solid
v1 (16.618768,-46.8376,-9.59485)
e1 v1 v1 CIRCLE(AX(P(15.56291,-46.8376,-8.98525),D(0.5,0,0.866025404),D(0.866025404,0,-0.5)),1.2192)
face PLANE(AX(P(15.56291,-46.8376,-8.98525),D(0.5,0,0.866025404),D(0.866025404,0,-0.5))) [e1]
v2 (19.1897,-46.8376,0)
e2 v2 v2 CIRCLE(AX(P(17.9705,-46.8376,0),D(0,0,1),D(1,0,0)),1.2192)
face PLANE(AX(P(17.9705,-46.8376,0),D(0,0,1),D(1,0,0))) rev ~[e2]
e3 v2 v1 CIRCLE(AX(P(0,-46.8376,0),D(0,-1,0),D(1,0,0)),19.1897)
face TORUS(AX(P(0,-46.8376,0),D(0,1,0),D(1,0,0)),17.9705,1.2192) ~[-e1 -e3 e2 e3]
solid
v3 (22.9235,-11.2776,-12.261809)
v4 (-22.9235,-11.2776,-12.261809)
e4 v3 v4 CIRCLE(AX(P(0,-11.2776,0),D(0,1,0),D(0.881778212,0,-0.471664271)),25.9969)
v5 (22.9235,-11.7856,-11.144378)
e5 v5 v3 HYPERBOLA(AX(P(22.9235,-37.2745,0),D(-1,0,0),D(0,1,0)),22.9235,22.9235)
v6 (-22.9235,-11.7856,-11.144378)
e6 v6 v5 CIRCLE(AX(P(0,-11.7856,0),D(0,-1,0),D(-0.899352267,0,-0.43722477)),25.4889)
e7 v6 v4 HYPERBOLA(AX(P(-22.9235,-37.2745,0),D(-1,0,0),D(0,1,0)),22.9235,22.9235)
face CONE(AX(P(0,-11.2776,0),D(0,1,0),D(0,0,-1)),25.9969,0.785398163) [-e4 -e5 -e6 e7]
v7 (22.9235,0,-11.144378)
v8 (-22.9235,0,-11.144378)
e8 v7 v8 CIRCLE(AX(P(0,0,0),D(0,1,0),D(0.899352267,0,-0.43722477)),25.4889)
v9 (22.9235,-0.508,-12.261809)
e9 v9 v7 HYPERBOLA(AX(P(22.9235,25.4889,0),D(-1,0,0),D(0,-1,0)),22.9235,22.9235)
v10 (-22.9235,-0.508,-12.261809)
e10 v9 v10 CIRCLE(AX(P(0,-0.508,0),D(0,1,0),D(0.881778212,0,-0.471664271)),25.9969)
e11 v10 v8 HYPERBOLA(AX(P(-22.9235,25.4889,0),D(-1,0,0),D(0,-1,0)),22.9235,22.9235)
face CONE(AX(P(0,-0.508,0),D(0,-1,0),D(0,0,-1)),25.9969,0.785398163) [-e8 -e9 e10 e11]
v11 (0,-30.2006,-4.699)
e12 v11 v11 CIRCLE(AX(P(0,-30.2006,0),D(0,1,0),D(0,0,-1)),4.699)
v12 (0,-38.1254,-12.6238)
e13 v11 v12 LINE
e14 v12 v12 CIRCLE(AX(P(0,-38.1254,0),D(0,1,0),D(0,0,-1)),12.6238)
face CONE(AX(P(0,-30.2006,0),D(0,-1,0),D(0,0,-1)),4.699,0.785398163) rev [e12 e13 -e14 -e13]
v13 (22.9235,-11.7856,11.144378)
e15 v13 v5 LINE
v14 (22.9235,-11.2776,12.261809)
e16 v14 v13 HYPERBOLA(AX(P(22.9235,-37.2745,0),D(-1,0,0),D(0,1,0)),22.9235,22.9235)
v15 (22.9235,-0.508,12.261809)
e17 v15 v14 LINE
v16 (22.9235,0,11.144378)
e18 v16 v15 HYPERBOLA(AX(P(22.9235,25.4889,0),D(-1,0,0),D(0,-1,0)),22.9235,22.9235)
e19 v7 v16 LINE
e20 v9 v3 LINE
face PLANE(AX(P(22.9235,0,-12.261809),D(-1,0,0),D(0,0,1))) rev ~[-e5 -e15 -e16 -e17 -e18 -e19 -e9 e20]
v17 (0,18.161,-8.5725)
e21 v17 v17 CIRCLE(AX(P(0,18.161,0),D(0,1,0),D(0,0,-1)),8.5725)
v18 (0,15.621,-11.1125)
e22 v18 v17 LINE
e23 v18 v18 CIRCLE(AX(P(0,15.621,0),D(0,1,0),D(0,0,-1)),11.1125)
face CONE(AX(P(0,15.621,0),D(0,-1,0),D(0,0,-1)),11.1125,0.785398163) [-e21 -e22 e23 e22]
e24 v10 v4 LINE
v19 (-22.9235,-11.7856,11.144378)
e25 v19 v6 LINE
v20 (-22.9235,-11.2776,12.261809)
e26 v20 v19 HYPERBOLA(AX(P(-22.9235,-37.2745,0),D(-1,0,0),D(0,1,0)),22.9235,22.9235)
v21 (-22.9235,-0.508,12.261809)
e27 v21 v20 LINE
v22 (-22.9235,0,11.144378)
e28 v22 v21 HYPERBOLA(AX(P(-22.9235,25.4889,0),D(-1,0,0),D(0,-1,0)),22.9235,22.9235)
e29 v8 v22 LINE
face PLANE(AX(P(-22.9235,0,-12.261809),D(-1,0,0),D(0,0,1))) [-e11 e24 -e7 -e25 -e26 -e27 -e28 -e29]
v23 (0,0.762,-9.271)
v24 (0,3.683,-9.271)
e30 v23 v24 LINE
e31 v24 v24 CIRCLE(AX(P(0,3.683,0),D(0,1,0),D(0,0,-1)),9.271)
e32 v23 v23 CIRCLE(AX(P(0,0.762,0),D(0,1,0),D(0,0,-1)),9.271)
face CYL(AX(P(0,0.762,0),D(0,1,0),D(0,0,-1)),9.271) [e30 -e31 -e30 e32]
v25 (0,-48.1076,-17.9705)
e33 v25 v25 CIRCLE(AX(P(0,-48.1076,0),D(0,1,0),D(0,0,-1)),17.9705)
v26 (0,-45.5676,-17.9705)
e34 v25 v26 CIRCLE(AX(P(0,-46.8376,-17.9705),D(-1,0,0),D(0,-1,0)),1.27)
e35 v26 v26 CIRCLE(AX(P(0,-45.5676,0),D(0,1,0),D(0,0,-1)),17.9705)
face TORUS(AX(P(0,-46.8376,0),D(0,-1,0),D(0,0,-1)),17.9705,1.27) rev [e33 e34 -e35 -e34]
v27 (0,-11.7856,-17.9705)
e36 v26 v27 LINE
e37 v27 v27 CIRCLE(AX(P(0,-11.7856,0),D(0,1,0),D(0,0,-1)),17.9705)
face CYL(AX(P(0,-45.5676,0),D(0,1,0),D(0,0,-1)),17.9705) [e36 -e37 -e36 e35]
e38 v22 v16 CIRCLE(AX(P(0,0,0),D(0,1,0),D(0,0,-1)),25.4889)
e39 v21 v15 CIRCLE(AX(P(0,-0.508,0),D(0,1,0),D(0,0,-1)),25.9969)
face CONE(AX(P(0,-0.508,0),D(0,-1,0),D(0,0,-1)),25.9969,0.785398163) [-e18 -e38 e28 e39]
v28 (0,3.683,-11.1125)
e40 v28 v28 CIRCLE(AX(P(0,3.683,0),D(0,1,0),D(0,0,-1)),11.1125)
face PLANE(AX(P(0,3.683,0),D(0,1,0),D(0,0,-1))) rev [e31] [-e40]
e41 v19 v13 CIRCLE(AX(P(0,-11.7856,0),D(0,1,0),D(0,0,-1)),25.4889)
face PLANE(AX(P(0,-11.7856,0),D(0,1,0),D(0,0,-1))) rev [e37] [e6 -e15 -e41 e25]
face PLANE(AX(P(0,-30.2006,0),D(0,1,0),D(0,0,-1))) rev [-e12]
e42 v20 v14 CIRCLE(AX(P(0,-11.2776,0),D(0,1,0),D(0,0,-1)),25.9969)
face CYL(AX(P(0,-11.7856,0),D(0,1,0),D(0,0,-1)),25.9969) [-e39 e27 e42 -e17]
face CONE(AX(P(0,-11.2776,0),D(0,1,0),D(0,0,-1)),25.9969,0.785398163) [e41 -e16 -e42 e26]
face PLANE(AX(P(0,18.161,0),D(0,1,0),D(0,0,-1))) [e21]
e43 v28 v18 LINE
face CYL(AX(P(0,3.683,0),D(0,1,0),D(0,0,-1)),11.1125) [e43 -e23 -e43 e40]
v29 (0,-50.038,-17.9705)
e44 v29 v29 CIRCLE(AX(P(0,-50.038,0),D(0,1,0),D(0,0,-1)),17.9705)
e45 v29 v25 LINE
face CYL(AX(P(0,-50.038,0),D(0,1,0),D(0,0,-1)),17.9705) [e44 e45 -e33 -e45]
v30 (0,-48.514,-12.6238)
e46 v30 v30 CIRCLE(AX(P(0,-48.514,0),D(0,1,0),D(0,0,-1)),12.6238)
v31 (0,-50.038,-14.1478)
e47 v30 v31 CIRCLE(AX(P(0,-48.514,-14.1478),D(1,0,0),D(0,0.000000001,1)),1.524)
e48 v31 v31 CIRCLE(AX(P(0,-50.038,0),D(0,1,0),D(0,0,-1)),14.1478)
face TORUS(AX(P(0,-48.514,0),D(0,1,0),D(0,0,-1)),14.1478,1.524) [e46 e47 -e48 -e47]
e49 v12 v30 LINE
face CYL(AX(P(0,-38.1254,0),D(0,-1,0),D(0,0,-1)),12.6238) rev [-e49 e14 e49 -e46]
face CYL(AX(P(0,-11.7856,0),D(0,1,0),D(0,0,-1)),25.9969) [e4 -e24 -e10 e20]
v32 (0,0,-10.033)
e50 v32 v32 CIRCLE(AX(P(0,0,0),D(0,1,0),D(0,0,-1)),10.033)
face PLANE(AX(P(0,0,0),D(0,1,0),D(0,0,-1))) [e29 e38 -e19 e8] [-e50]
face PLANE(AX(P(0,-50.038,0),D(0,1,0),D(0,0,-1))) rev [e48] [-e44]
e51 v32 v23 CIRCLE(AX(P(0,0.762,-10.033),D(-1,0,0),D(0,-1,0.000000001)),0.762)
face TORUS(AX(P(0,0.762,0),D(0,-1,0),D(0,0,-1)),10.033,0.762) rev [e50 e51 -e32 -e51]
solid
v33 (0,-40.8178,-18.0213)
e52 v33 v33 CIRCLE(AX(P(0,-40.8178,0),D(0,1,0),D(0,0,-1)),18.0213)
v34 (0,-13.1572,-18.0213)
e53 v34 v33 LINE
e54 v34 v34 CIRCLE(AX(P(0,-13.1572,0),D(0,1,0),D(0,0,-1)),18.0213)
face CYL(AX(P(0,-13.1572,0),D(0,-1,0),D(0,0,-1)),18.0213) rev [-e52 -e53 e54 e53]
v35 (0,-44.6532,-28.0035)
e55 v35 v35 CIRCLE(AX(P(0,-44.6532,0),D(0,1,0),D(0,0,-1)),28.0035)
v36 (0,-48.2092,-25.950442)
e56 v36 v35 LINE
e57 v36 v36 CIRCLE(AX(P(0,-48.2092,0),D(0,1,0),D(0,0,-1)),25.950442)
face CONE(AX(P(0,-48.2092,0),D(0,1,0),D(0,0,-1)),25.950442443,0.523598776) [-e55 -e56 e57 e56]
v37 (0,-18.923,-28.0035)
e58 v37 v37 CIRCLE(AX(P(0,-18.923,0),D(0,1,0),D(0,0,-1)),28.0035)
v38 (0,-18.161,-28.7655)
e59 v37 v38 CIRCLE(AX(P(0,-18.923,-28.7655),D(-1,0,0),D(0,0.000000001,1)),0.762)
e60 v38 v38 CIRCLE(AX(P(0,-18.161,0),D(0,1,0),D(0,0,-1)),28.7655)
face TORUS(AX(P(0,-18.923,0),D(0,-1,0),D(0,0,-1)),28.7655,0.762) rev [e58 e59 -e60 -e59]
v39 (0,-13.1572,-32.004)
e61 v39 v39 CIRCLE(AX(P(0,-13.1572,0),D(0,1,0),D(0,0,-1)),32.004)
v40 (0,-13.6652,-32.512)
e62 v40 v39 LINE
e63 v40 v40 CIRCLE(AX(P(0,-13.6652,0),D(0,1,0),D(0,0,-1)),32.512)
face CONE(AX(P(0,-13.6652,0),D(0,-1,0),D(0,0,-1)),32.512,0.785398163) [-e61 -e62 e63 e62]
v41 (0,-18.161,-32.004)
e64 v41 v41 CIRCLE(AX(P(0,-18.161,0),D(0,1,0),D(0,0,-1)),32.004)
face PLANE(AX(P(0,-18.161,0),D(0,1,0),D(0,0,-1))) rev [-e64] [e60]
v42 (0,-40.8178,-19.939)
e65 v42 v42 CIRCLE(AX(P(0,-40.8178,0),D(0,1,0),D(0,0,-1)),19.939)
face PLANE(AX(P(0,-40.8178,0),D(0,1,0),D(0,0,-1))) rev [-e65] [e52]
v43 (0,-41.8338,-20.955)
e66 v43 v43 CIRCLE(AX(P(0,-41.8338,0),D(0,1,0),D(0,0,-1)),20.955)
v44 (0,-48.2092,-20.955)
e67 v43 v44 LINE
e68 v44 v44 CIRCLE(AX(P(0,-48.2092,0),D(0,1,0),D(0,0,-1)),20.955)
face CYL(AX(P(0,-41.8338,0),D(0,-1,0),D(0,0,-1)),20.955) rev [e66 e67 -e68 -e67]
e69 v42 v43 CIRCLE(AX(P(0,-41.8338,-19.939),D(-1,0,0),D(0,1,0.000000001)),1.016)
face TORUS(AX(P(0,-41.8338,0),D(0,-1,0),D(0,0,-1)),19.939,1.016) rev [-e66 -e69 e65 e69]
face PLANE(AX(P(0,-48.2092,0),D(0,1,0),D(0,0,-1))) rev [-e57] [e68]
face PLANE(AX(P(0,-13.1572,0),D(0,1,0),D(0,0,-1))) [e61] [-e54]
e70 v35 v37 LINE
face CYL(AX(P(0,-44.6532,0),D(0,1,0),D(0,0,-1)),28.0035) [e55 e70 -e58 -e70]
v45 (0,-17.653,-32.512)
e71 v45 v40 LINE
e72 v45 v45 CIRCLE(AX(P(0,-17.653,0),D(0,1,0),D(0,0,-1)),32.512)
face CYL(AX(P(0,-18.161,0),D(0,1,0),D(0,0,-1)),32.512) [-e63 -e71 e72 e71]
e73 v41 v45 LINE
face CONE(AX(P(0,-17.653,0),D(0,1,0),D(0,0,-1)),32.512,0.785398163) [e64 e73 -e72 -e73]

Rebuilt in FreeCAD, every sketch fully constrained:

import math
import FreeCAD as App
import Part
import Sketcher

V = App.Vector
Q = App.Units.Quantity


def edges_at(feature, points):
    """Names of the edges that pass closest to the given points."""
    edges = feature.Shape.Edges
    near = lambda p: min(range(len(edges)), key=lambda i: edges[i].distToShape(Part.Vertex(*p))[0])
    return sorted({f"Edge{near(p) + 1}" for p in points})

doc = App.newDocument("Part")
body = doc.addObject("PartDesign::Body", "Body")

# Sketch on XY plane
sketch1 = doc.addObject("Sketcher::SketchObject", "Sketch")
body.addObject(sketch1)
sketch1.AttachmentSupport = (doc.XY_Plane, [""])
sketch1.MapMode = "FlatFace"
sketch1.addGeometry([
    Part.LineSegment(V(0, 18.161, 0), V(0, -30.2006, 0)),  # 0
    Part.LineSegment(V(0, -30.2006, 0), V(4.699, -30.2006, 0)),  # 1
    Part.LineSegment(V(4.699, -30.2006, 0), V(12.6238, -38.1254, 0)),  # 2
    Part.LineSegment(V(12.6238, -38.1254, 0), V(12.6238, -48.514, 0)),  # 3
    Part.ArcOfCircle(Part.Circle(V(14.1478, -48.514, 0), V(0, 0, 1), 1.524), math.radians(180), math.radians(270)),  # 4
    Part.LineSegment(V(14.1478, -50.038, 0), V(17.9705, -50.038, 0)),  # 5
    Part.LineSegment(V(17.9705, -50.038, 0), V(17.9705, -48.1076, 0)),  # 6
    Part.ArcOfCircle(Part.Circle(V(17.9705, -46.8376, 0), V(0, 0, 1), 1.27), math.radians(90), math.radians(270)),  # 7
    Part.LineSegment(V(17.9705, -45.5676, 0), V(17.9705, -11.7856, 0)),  # 8
    Part.LineSegment(V(17.9705, -11.7856, 0), V(25.9969, -11.7856, 0)),  # 9
    Part.LineSegment(V(25.9969, -11.7856, 0), V(25.9969, 0, 0)),  # 10
    Part.LineSegment(V(25.9969, 0, 0), V(10.033, 0, 0)),  # 11
    Part.ArcOfCircle(Part.Circle(V(10.033, 0.762, 0), V(0, 0, 1), 0.762), math.radians(-180), math.radians(-90)),  # 12
    Part.LineSegment(V(9.271, 0.762, 0), V(9.271, 3.683, 0)),  # 13
    Part.LineSegment(V(9.271, 3.683, 0), V(11.1125, 3.683, 0)),  # 14
    Part.LineSegment(V(11.1125, 3.683, 0), V(11.1125, 18.161, 0)),  # 15
    Part.LineSegment(V(11.1125, 18.161, 0), V(0, 18.161, 0)),  # 16
], False)
sketch1.addConstraint([
    Sketcher.Constraint("Coincident", 0, 2, 1, 1),
    Sketcher.Constraint("Coincident", 1, 2, 2, 1),
    Sketcher.Constraint("Coincident", 2, 2, 3, 1),
    Sketcher.Constraint("Tangent", 3, 2, 4, 1),
    Sketcher.Constraint("Tangent", 4, 2, 5, 1),
    Sketcher.Constraint("Coincident", 5, 2, 6, 1),
    Sketcher.Constraint("Coincident", 6, 2, 7, 2),
    Sketcher.Constraint("Coincident", 7, 1, 8, 1),
    Sketcher.Constraint("Coincident", 8, 2, 9, 1),
    Sketcher.Constraint("Coincident", 9, 2, 10, 1),
    Sketcher.Constraint("Coincident", 10, 2, 11, 1),
    Sketcher.Constraint("Tangent", 11, 2, 12, 2),
    Sketcher.Constraint("Tangent", 12, 1, 13, 1),
    Sketcher.Constraint("Coincident", 13, 2, 14, 1),
    Sketcher.Constraint("Coincident", 14, 2, 15, 1),
    Sketcher.Constraint("Coincident", 15, 2, 16, 1),
    Sketcher.Constraint("Coincident", 16, 2, 0, 1),
    Sketcher.Constraint("Vertical", 0),
    Sketcher.Constraint("Horizontal", 1),
    Sketcher.Constraint("Vertical", 3),
    Sketcher.Constraint("Horizontal", 5),
    Sketcher.Constraint("Vertical", 6),
    Sketcher.Constraint("Vertical", 8),
    Sketcher.Constraint("Horizontal", 9),
    Sketcher.Constraint("Vertical", 10),
    Sketcher.Constraint("Horizontal", 11),
    Sketcher.Constraint("Vertical", 13),
    Sketcher.Constraint("Horizontal", 14),
    Sketcher.Constraint("Vertical", 15),
    Sketcher.Constraint("Horizontal", 16),
    Sketcher.Constraint("PointOnObject", 0, 2, -2),
    Sketcher.Constraint("PointOnObject", 10, 2, -1),
    Sketcher.Constraint("Vertical", 7, 3, 5, 2),
    Sketcher.Constraint("Vertical", 6, 2, 7, 1),
    Sketcher.Constraint("Radius", 4, Q("0.06 in")),
    Sketcher.Constraint("Radius", 7, Q("0.05 in")),
    Sketcher.Constraint("Radius", 12, Q("0.03 in")),
    Sketcher.Constraint("Angle", 2, Q("-45 deg")),
    Sketcher.Constraint("DistanceY", 8, 1, 8, 2, Q("1.33 in")),
    Sketcher.Constraint("DistanceY", 15, 1, 15, 2, Q("0.57 in")),
    Sketcher.Constraint("DistanceX", 1, 1, 1, 2, Q("0.185 in")),
    Sketcher.Constraint("DistanceX", 9, 1, 9, 2, Q("0.316 in")),
    Sketcher.Constraint("DistanceX", 16, 2, 16, 1, Q("0.4375 in")),
    Sketcher.Constraint("DistanceY", 0, 2, 0, 1, Q("1.904 in")),
    Sketcher.Constraint("DistanceY", 3, 2, 3, 1, Q("0.409 in")),
    Sketcher.Constraint("DistanceY", 6, 1, 6, 2, Q("0.076 in")),
    Sketcher.Constraint("DistanceY", 10, 1, 10, 2, Q("0.464 in")),
    Sketcher.Constraint("DistanceY", 13, 1, 13, 2, Q("0.115 in")),
    Sketcher.Constraint("DistanceX", 1, 2, 12, 3, Q("0.21 in")),
    Sketcher.Constraint("DistanceX", 5, 1, 5, 2, Q("0.1505 in")),
])
revolution = doc.addObject("PartDesign::Revolution", "Revolution")
body.addObject(revolution)
revolution.Profile = sketch1
revolution.ReferenceAxis = (sketch1, ["V_Axis"])
revolution.Angle = 360
doc.recompute()

chamfer = doc.addObject("PartDesign::Chamfer", "Chamfer")
body.addObject(chamfer)
chamfer.Base = (revolution, edges_at(revolution, [(0, -11.786, 25.997), (0, 0, 25.997)]))
chamfer.Size = Q("0.02 in")
doc.recompute()

chamfer2 = doc.addObject("PartDesign::Chamfer", "Chamfer001")
body.addObject(chamfer2)
chamfer2.Base = (chamfer, edges_at(chamfer, [(0, 18.161, 11.113)]))
chamfer2.Size = Q("0.1 in")

# Sketch on XZ plane
sketch2 = doc.addObject("Sketcher::SketchObject", "Sketch001")
body.addObject(sketch2)
sketch2.AttachmentSupport = (doc.XZ_Plane, [""])
sketch2.MapMode = "FlatFace"
sketch2.addGeometry([
    Part.LineSegment(V(-22.9235, 12.261809, 0), V(-22.9235, -12.261809, 0)),
    Part.ArcOfCircle(Part.Circle(V(0, 0, 0), V(0, 0, 1), 25.9969), math.radians(151.857618), math.radians(208.142382)),
    Part.LineSegment(V(22.9235, -12.261809, 0), V(22.9235, 12.261809, 0)),
    Part.ArcOfCircle(Part.Circle(V(0, 0, 0), V(0, 0, 1), 25.9969), math.radians(-28.142382), math.radians(28.142382)),
], False)
sketch2.addConstraint([
    Sketcher.Constraint("Coincident", 0, 1, 1, 1),
    Sketcher.Constraint("Coincident", 1, 2, 0, 2),
    Sketcher.Constraint("Coincident", 2, 1, 3, 1),
    Sketcher.Constraint("Coincident", 3, 2, 2, 2),
    Sketcher.Constraint("Vertical", 0),
    Sketcher.Constraint("Vertical", 2),
    Sketcher.Constraint("Coincident", 1, 3, -1, 1),
    Sketcher.Constraint("Coincident", 3, 3, -1, 1),
    Sketcher.Constraint("Equal", 1, 3),
    Sketcher.Constraint("Horizontal", 1, 2, 2, 1),
    Sketcher.Constraint("Radius", 1, Q("1.0235 in")),
    Sketcher.Constraint("DistanceX", 1, 2, 2, 1, Q("1.805 in")),
])
pocket1 = doc.addObject("PartDesign::Pocket", "Pocket")
body.addObject(pocket1)
pocket1.Profile = sketch2
pocket1.Type = "ThroughAll"
pocket1.Reversed = True
body2 = doc.addObject("PartDesign::Body", "Body001")

# Sketch on XY plane
sketch3 = doc.addObject("Sketcher::SketchObject", "Sketch002")
body2.addObject(sketch3)
sketch3.AttachmentSupport = (doc.getObject("XY_Plane001"), [""])
sketch3.MapMode = "FlatFace"
sketch3.addGeometry([
    Part.LineSegment(V(18.0213, -13.1572, 0), V(18.0213, -40.8178, 0)),  # 0
    Part.LineSegment(V(18.0213, -40.8178, 0), V(19.939, -40.8178, 0)),  # 1
    Part.ArcOfCircle(Part.Circle(V(19.939, -41.8338, 0), V(0, 0, 1), 1.016), math.radians(0), math.radians(90)),  # 2
    Part.LineSegment(V(20.955, -41.8338, 0), V(20.955, -48.2092, 0)),  # 3
    Part.LineSegment(V(20.955, -48.2092, 0), V(25.950442, -48.2092, 0)),  # 4
    Part.LineSegment(V(25.950442, -48.2092, 0), V(28.0035, -44.6532, 0)),  # 5
    Part.LineSegment(V(28.0035, -44.6532, 0), V(28.0035, -18.923, 0)),  # 6
    Part.ArcOfCircle(Part.Circle(V(28.7655, -18.923, 0), V(0, 0, 1), 0.762), math.radians(90), math.radians(180)),  # 7
    Part.LineSegment(V(28.7655, -18.161, 0), V(32.512, -18.161, 0)),  # 8
    Part.LineSegment(V(32.512, -18.161, 0), V(32.512, -13.1572, 0)),  # 9
    Part.LineSegment(V(32.512, -13.1572, 0), V(18.0213, -13.1572, 0)),  # 10
], False)
sketch3.addConstraint([
    Sketcher.Constraint("Coincident", 0, 2, 1, 1),
    Sketcher.Constraint("Tangent", 1, 2, 2, 2),
    Sketcher.Constraint("Tangent", 2, 1, 3, 1),
    Sketcher.Constraint("Coincident", 3, 2, 4, 1),
    Sketcher.Constraint("Coincident", 4, 2, 5, 1),
    Sketcher.Constraint("Coincident", 5, 2, 6, 1),
    Sketcher.Constraint("Tangent", 6, 2, 7, 2),
    Sketcher.Constraint("Tangent", 7, 1, 8, 1),
    Sketcher.Constraint("Coincident", 8, 2, 9, 1),
    Sketcher.Constraint("Coincident", 9, 2, 10, 1),
    Sketcher.Constraint("Coincident", 10, 2, 0, 1),
    Sketcher.Constraint("Vertical", 0),
    Sketcher.Constraint("Horizontal", 1),
    Sketcher.Constraint("Vertical", 3),
    Sketcher.Constraint("Horizontal", 4),
    Sketcher.Constraint("Vertical", 6),
    Sketcher.Constraint("Horizontal", 8),
    Sketcher.Constraint("Vertical", 9),
    Sketcher.Constraint("Horizontal", 10),
    Sketcher.Constraint("Radius", 2, Q("0.04 in")),
    Sketcher.Constraint("Radius", 7, Q("0.03 in")),
    Sketcher.Constraint("Angle", 5, Q("60 deg")),
    Sketcher.Constraint("DistanceY", 0, 2, 0, 1, Q("1.089 in")),
    Sketcher.Constraint("DistanceY", 3, 2, 3, 1, Q("0.251 in")),
    Sketcher.Constraint("DistanceY", 6, 1, 6, 2, Q("1.013 in")),
    Sketcher.Constraint("DistanceY", 9, 1, 9, 2, Q("0.197 in")),
    Sketcher.Constraint("DistanceX", -1, 1, 8, 2, Q("1.28 in")),
    Sketcher.Constraint("DistanceX", 1, 1, 1, 2, Q("0.0755 in")),
    Sketcher.Constraint("DistanceX", 8, 1, 8, 2, Q("0.1475 in")),
    Sketcher.Constraint("DistanceX", 10, 2, 10, 1, Q("0.5705 in")),
    Sketcher.Constraint("DistanceY", 2, 3, -1, 1, Q("1.647 in")),
])
revolution2 = doc.addObject("PartDesign::Revolution", "Revolution001")
body2.addObject(revolution2)
revolution2.Profile = sketch3
revolution2.ReferenceAxis = (sketch3, ["V_Axis"])
revolution2.Angle = 360
doc.recompute()

chamfer3 = doc.addObject("PartDesign::Chamfer", "Chamfer002")
body2.addObject(chamfer3)
chamfer3.Base = (revolution2, edges_at(revolution2, [(0, -13.157, 32.512), (0, -18.161, 32.512)]))
chamfer3.Size = Q("0.02 in")
body3 = doc.addObject("PartDesign::Body", "Body002")

# Sketch on XY plane
sketch4 = doc.addObject("Sketcher::SketchObject", "Sketch003")
body3.addObject(sketch4)
sketch4.AttachmentSupport = (doc.getObject("XY_Plane002"), [""])
sketch4.MapMode = "FlatFace"
sketch4.addGeometry(Part.Circle(V(17.9705, -46.8376, 0), V(0, 0, 1), 1.2192), False)
sketch4.addConstraint([
    Sketcher.Constraint("Diameter", 0, Q("0.096 in")),
    Sketcher.Constraint("DistanceY", 0, 3, -1, 1, Q("1.844 in")),
    Sketcher.Constraint("DistanceX", -1, 1, 0, 3, Q("0.7075 in")),
])
revolution3 = doc.addObject("PartDesign::Revolution", "Revolution002")
body3.addObject(revolution3)
revolution3.Profile = sketch4
revolution3.ReferenceAxis = (sketch4, ["V_Axis"])
revolution3.Angle = 330
revolution3.Reversed = True

doc.recompute()
